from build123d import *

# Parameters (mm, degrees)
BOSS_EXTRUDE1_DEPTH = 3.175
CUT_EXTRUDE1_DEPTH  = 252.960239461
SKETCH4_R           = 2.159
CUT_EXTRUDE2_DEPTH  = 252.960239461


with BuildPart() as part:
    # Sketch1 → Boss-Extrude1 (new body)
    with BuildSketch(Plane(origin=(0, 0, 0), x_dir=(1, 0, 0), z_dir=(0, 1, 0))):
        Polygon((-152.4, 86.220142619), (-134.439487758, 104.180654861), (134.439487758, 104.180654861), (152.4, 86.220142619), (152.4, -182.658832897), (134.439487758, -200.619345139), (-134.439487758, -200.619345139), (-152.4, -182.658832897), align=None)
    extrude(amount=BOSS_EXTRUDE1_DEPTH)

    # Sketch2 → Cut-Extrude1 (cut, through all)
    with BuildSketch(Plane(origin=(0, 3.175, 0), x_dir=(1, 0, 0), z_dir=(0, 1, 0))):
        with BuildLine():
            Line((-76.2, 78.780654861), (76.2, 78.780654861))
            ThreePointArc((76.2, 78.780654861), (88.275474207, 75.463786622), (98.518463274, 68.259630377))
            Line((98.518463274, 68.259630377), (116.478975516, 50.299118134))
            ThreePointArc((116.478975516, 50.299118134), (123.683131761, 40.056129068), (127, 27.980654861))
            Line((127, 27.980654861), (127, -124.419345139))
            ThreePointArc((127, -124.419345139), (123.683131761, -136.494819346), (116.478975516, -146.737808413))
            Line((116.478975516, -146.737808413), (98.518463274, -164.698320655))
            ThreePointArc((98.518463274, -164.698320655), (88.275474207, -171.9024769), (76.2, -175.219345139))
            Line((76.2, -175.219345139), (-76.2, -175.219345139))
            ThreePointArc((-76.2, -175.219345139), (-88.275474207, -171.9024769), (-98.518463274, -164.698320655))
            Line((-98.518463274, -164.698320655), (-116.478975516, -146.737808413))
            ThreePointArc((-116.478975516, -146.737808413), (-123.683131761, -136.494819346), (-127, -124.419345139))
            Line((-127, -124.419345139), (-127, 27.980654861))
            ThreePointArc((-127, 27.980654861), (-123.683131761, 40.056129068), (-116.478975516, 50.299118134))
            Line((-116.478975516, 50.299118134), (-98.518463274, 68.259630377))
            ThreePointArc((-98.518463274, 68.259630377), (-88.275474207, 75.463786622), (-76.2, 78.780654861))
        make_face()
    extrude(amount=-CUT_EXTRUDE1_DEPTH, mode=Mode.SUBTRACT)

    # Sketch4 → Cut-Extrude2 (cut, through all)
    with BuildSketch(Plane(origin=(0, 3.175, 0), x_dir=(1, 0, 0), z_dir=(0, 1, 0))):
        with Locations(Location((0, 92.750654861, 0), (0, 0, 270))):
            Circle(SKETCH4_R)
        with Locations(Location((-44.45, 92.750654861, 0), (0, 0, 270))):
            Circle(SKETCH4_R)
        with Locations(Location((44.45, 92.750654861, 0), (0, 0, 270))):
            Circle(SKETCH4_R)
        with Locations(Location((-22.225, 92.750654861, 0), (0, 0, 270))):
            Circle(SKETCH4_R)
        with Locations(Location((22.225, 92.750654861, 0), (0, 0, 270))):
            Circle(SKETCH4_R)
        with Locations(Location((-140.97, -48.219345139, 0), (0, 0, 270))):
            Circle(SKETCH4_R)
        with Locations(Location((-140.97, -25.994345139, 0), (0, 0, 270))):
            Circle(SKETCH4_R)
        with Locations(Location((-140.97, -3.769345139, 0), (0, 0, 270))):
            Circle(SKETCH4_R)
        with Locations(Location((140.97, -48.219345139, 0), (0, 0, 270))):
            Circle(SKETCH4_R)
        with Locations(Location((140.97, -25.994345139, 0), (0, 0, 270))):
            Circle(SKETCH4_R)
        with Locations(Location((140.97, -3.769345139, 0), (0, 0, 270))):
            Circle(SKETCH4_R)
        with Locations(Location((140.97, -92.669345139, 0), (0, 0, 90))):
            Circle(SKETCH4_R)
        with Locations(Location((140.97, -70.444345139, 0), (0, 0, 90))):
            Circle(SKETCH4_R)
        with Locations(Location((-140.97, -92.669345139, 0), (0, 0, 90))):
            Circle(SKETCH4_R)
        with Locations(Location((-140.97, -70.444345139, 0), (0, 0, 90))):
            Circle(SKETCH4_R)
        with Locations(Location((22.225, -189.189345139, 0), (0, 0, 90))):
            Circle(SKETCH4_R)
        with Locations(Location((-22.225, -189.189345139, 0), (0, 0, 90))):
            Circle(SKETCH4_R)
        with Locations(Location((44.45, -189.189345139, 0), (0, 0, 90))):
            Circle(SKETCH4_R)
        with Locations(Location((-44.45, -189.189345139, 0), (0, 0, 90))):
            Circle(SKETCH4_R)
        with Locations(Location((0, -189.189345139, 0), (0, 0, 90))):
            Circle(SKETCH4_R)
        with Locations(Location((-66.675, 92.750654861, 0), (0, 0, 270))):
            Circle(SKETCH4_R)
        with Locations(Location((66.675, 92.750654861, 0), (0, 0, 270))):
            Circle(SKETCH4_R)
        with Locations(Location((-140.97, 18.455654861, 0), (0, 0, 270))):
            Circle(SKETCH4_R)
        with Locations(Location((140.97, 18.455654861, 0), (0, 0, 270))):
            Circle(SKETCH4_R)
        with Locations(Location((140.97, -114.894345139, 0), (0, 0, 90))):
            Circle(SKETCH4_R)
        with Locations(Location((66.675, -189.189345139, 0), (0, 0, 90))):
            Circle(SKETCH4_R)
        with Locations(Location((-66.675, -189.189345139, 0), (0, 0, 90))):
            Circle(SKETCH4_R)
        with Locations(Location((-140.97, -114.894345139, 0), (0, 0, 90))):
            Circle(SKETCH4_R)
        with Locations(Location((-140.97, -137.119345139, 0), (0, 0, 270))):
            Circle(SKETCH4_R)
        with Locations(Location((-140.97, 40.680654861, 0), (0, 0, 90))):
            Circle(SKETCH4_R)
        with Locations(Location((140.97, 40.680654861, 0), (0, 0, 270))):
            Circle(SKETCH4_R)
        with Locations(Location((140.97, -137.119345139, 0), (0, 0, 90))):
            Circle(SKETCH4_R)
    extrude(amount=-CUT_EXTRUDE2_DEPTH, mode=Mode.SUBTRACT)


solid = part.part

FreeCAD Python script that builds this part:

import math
import FreeCAD as App
import Part
import Sketcher

V = App.Vector
Q = App.Units.Quantity

doc = App.newDocument("Part")
body = doc.addObject("PartDesign::Body", "Body")

# Sketch on XZ plane
sketch1 = doc.addObject("Sketcher::SketchObject", "Sketch")
body.addObject(sketch1)
sketch1.AttachmentSupport = (doc.XZ_Plane, [""])
sketch1.MapMode = "FlatFace"
sketch1.addGeometry(Part.LineSegment(V(-134, -104, 0), V(-152, -86, 0)), False)
sketch1.addGeometry(Part.LineSegment(V(-152, -86, 0), V(-152, 183, 0)), False)
sketch1.addGeometry(Part.LineSegment(V(-152, 183, 0), V(-134, 201, 0)), False)
sketch1.addGeometry(Part.LineSegment(V(-134, 201, 0), V(134, 201, 0)), False)
sketch1.addGeometry(Part.LineSegment(V(134, 201, 0), V(152, 183, 0)), False)
sketch1.addGeometry(Part.LineSegment(V(152, 183, 0), V(152, -86, 0)), False)
sketch1.addGeometry(Part.LineSegment(V(152, -86, 0), V(134, -104, 0)), False)
sketch1.addGeometry(Part.LineSegment(V(134, -104, 0), V(-134, -104, 0)), False)
sketch1.addConstraint(Sketcher.Constraint("Coincident", 0, 2, 1, 1))
sketch1.addConstraint(Sketcher.Constraint("Coincident", 1, 2, 2, 1))
sketch1.addConstraint(Sketcher.Constraint("Coincident", 2, 2, 3, 1))
sketch1.addConstraint(Sketcher.Constraint("Coincident", 3, 2, 4, 1))
sketch1.addConstraint(Sketcher.Constraint("Coincident", 4, 2, 5, 1))
sketch1.addConstraint(Sketcher.Constraint("Coincident", 5, 2, 6, 1))
sketch1.addConstraint(Sketcher.Constraint("Coincident", 6, 2, 7, 1))
sketch1.addConstraint(Sketcher.Constraint("Coincident", 7, 2, 0, 1))
sketch1.addConstraint(Sketcher.Constraint("Vertical", 1))
sketch1.addConstraint(Sketcher.Constraint("Horizontal", 3))
sketch1.addConstraint(Sketcher.Constraint("Vertical", 5))
sketch1.addConstraint(Sketcher.Constraint("Horizontal", 7))
sketch1.addConstraint(Sketcher.Constraint("Symmetric", 1, 2, 4, 2, -2))
sketch1.addConstraint(Sketcher.Constraint("Perpendicular", 0, 2))
sketch1.addConstraint(Sketcher.Constraint("Perpendicular", 2, 4))
sketch1.addConstraint(Sketcher.Constraint("Perpendicular", 4, 6))
sketch1.addConstraint(Sketcher.Constraint("Horizontal", 0, 2, 5, 2))
sketch1.addConstraint(Sketcher.Constraint("Vertical", 3, 2, 6, 2))
sketch1.addConstraint(Sketcher.Constraint("Vertical", 2, 2, 7, 2))
sketch1.addConstraint(Sketcher.Constraint("Equal", 7, 1))
sketch1.addConstraint(Sketcher.Constraint("Distance", 0, Q("1 in")))
sketch1.addConstraint(Sketcher.Constraint("DistanceX", 0, 2, -1, 1, Q("6 in")))
sketch1.addConstraint(Sketcher.Constraint("DistanceY", 0, 2, -1, 1, 86.220143))
pad1 = doc.addObject("PartDesign::Pad", "Pad")
body.addObject(pad1)
pad1.Profile = sketch1
pad1.Length = Q("0.125 in")
pad1.Reversed = True

# Sketch on XZ plane
sketch2 = doc.addObject("Sketcher::SketchObject", "Sketch001")
body.addObject(sketch2)
sketch2.AttachmentSupport = (doc.XZ_Plane, [""])
sketch2.MapMode = "FlatFace"
sketch2.AttachmentOffset = App.Placement(V(0, 0, -0.125 * 25.4), App.Rotation())
sketch2.addGeometry(Part.LineSegment(V(76, -79, 0), V(-76, -79, 0)), False)
sketch2.addGeometry(Part.ArcOfCircle(Part.Circle(V(-73, -42, 0), V(0, 0, 1), 36), math.radians(-135), math.radians(-95)), False)
sketch2.addGeometry(Part.LineSegment(V(-99, -68, 0), V(-116, -50, 0)), False)
sketch2.addGeometry(Part.ArcOfCircle(Part.Circle(V(-91, -24, 0), V(0, 0, 1), 36), math.radians(-175), math.radians(-135)), False)
sketch2.addGeometry(Part.LineSegment(V(-127, -28, 0), V(-127, 124, 0)), False)
sketch2.addGeometry(Part.ArcOfCircle(Part.Circle(V(-91, 121, 0), V(0, 0, 1), 36), math.radians(135), math.radians(175)), False)
sketch2.addGeometry(Part.LineSegment(V(-116, 147, 0), V(-99, 165, 0)), False)
sketch2.addGeometry(Part.ArcOfCircle(Part.Circle(V(-73, 139, 0), V(0, 0, 1), 36), math.radians(95), math.radians(135)), False)
sketch2.addGeometry(Part.LineSegment(V(-76, 175, 0), V(76, 175, 0)), False)
sketch2.addGeometry(Part.ArcOfCircle(Part.Circle(V(73, 139, 0), V(0, 0, 1), 36), math.radians(45), math.radians(85)), False)
sketch2.addGeometry(Part.LineSegment(V(99, 165, 0), V(116, 147, 0)), False)
sketch2.addGeometry(Part.ArcOfCircle(Part.Circle(V(91, 121, 0), V(0, 0, 1), 36), math.radians(5), math.radians(45)), False)
sketch2.addGeometry(Part.LineSegment(V(127, 124, 0), V(127, -28, 0)), False)
sketch2.addGeometry(Part.ArcOfCircle(Part.Circle(V(91, -24, 0), V(0, 0, 1), 36), math.radians(-45), math.radians(-5)), False)
sketch2.addGeometry(Part.LineSegment(V(116, -50, 0), V(99, -68, 0)), False)
sketch2.addGeometry(Part.ArcOfCircle(Part.Circle(V(73, -42, 0), V(0, 0, 1), 36), math.radians(-85), math.radians(-45)), False)
sketch2.addConstraint(Sketcher.Constraint("Coincident", 0, 2, 1, 2))
sketch2.addConstraint(Sketcher.Constraint("Tangent", 1, 1, 2, 1))
sketch2.addConstraint(Sketcher.Constraint("Tangent", 2, 2, 3, 2))
sketch2.addConstraint(Sketcher.Constraint("Coincident", 3, 1, 4, 1))
sketch2.addConstraint(Sketcher.Constraint("Coincident", 4, 2, 5, 2))
sketch2.addConstraint(Sketcher.Constraint("Tangent", 5, 1, 6, 1))
sketch2.addConstraint(Sketcher.Constraint("Tangent", 6, 2, 7, 2))
sketch2.addConstraint(Sketcher.Constraint("Coincident", 7, 1, 8, 1))
sketch2.addConstraint(Sketcher.Constraint("Coincident", 8, 2, 9, 2))
sketch2.addConstraint(Sketcher.Constraint("Tangent", 9, 1, 10, 1))
sketch2.addConstraint(Sketcher.Constraint("Tangent", 10, 2, 11, 2))
sketch2.addConstraint(Sketcher.Constraint("Coincident", 11, 1, 12, 1))
sketch2.addConstraint(Sketcher.Constraint("Coincident", 12, 2, 13, 2))
sketch2.addConstraint(Sketcher.Constraint("Tangent", 13, 1, 14, 1))
sketch2.addConstraint(Sketcher.Constraint("Tangent", 14, 2, 15, 2))
sketch2.addConstraint(Sketcher.Constraint("Coincident", 15, 1, 0, 1))
sketch2.addConstraint(Sketcher.Constraint("Horizontal", 0))
sketch2.addConstraint(Sketcher.Constraint("Vertical", 4))
sketch2.addConstraint(Sketcher.Constraint("Horizontal", 8))
sketch2.addConstraint(Sketcher.Constraint("Vertical", 12))
sketch2.addConstraint(Sketcher.Constraint("Equal", 1, 3))
sketch2.addConstraint(Sketcher.Constraint("Equal", 3, 5))
sketch2.addConstraint(Sketcher.Constraint("Equal", 5, 7))
sketch2.addConstraint(Sketcher.Constraint("Equal", 7, 9))
sketch2.addConstraint(Sketcher.Constraint("Equal", 9, 11))
sketch2.addConstraint(Sketcher.Constraint("Equal", 11, 13))
sketch2.addConstraint(Sketcher.Constraint("Equal", 13, 15))
sketch2.addConstraint(Sketcher.Constraint("Symmetric", 7, 3, 9, 3, -2))
sketch2.addConstraint(Sketcher.Constraint("Symmetric", 5, 3, 11, 3, -2))
sketch2.addConstraint(Sketcher.Constraint("Symmetric", 3, 3, 13, 3, -2))
sketch2.addConstraint(Sketcher.Constraint("Symmetric", 1, 3, 15, 3, -2))
sketch2.addConstraint(Sketcher.Constraint("Perpendicular", 2, 6))
sketch2.addConstraint(Sketcher.Constraint("Perpendicular", 6, 10))
sketch2.addConstraint(Sketcher.Constraint("Horizontal", 4, 2, 11, 1))
sketch2.addConstraint(Sketcher.Constraint("Vertical", 3, 3, 5, 3))
sketch2.addConstraint(Sketcher.Constraint("Vertical", 1, 3, 7, 3))
sketch2.addConstraint(Sketcher.Constraint("Vertical", 0, 2, 7, 1))
sketch2.addConstraint(Sketcher.Constraint("Equal", 8, 4))
sketch2.addConstraint(Sketcher.Constraint("DistanceX", 0, 2, 0, 1, Q("6 in")))
sketch2.addConstraint(Sketcher.Constraint("Distance", 2, Q("1 in")))
sketch2.addConstraint(Sketcher.Constraint("DistanceX", 3, 1, -1, 1, Q("5 in")))
sketch2.addConstraint(Sketcher.Constraint("DistanceY", 0, 2, 3, 1, Q("2 in")))
sketch2.addConstraint(Sketcher.Constraint("Radius", 1, 36.490181))
sketch2.addConstraint(Sketcher.Constraint("DistanceY", 1, 1, -1, 1, 68.25963))
pocket1 = doc.addObject("PartDesign::Pocket", "Pocket")
body.addObject(pocket1)
pocket1.Profile = sketch2
pocket1.Type = "ThroughAll"
pocket1.Reversed = True

# Sketch on XZ plane
sketch3 = doc.addObject("Sketcher::SketchObject", "Sketch002")
body.addObject(sketch3)
sketch3.AttachmentSupport = (doc.XZ_Plane, [""])
sketch3.MapMode = "FlatFace"
sketch3.AttachmentOffset = App.Placement(V(0, 0, -0.125 * 25.4), App.Rotation())
sketch3.addGeometry(Part.Circle(V(0, -92.8, 0), V(0, 0, 1), 2.2), False)
sketch3.addGeometry(Part.Circle(V(-44.5, -92.8, 0), V(0, 0, 1), 2.2), False)
sketch3.addGeometry(Part.Circle(V(44.5, -92.8, 0), V(0, 0, 1), 2.2), False)
sketch3.addGeometry(Part.Circle(V(-22.2, -92.8, 0), V(0, 0, 1), 2.2), False)
sketch3.addGeometry(Part.Circle(V(22.2, -92.8, 0), V(0, 0, 1), 2.2), False)
sketch3.addGeometry(Part.Circle(V(-141, 48.2, 0), V(0, 0, 1), 2.2), False)
sketch3.addGeometry(Part.Circle(V(-141, 26, 0), V(0, 0, 1), 2.2), False)
sketch3.addGeometry(Part.Circle(V(-141, 3.8, 0), V(0, 0, 1), 2.2), False)
sketch3.addGeometry(Part.Circle(V(141, 48.2, 0), V(0, 0, 1), 2.2), False)
sketch3.addGeometry(Part.Circle(V(141, 26, 0), V(0, 0, 1), 2.2), False)
sketch3.addGeometry(Part.Circle(V(141, 3.8, 0), V(0, 0, 1), 2.2), False)
sketch3.addGeometry(Part.Circle(V(141, 92.7, 0), V(0, 0, 1), 2.2), False)
sketch3.addGeometry(Part.Circle(V(141, 70.4, 0), V(0, 0, 1), 2.2), False)
sketch3.addGeometry(Part.Circle(V(-141, 92.7, 0), V(0, 0, 1), 2.2), False)
sketch3.addGeometry(Part.Circle(V(-141, 70.4, 0), V(0, 0, 1), 2.2), False)
sketch3.addGeometry(Part.Circle(V(22.2, 189.2, 0), V(0, 0, 1), 2.2), False)
sketch3.addGeometry(Part.Circle(V(-22.2, 189.2, 0), V(0, 0, 1), 2.2), False)
sketch3.addGeometry(Part.Circle(V(44.5, 189.2, 0), V(0, 0, 1), 2.2), False)
sketch3.addGeometry(Part.Circle(V(-44.5, 189.2, 0), V(0, 0, 1), 2.2), False)
sketch3.addGeometry(Part.Circle(V(0, 189.2, 0), V(0, 0, 1), 2.2), False)
sketch3.addGeometry(Part.Circle(V(-66.7, -92.8, 0), V(0, 0, 1), 2.2), False)
sketch3.addGeometry(Part.Circle(V(66.7, -92.8, 0), V(0, 0, 1), 2.2), False)
sketch3.addGeometry(Part.Circle(V(-141, -18.5, 0), V(0, 0, 1), 2.2), False)
sketch3.addGeometry(Part.Circle(V(141, -18.5, 0), V(0, 0, 1), 2.2), False)
sketch3.addGeometry(Part.Circle(V(141, 114.9, 0), V(0, 0, 1), 2.2), False)
sketch3.addGeometry(Part.Circle(V(66.7, 189.2, 0), V(0, 0, 1), 2.2), False)
sketch3.addGeometry(Part.Circle(V(-66.7, 189.2, 0), V(0, 0, 1), 2.2), False)
sketch3.addGeometry(Part.Circle(V(-141, 114.9, 0), V(0, 0, 1), 2.2), False)
sketch3.addGeometry(Part.Circle(V(-141, 137.1, 0), V(0, 0, 1), 2.2), False)
sketch3.addGeometry(Part.Circle(V(-141, -40.7, 0), V(0, 0, 1), 2.2), False)
sketch3.addGeometry(Part.Circle(V(141, -40.7, 0), V(0, 0, 1), 2.2), False)
sketch3.addGeometry(Part.Circle(V(141, 137.1, 0), V(0, 0, 1), 2.2), False)
sketch3.addConstraint(Sketcher.Constraint("Equal", 0, 1))
sketch3.addConstraint(Sketcher.Constraint("Equal", 1, 2))
sketch3.addConstraint(Sketcher.Constraint("Equal", 2, 3))
sketch3.addConstraint(Sketcher.Constraint("Equal", 3, 4))
sketch3.addConstraint(Sketcher.Constraint("Equal", 4, 5))
sketch3.addConstraint(Sketcher.Constraint("Equal", 5, 6))
sketch3.addConstraint(Sketcher.Constraint("Equal", 6, 7))
sketch3.addConstraint(Sketcher.Constraint("Equal", 7, 8))
sketch3.addConstraint(Sketcher.Constraint("Equal", 8, 9))
sketch3.addConstraint(Sketcher.Constraint("Equal", 9, 10))
sketch3.addConstraint(Sketcher.Constraint("Equal", 10, 11))
sketch3.addConstraint(Sketcher.Constraint("Equal", 11, 12))
sketch3.addConstraint(Sketcher.Constraint("Equal", 12, 13))
sketch3.addConstraint(Sketcher.Constraint("Equal", 13, 14))
sketch3.addConstraint(Sketcher.Constraint("Equal", 14, 15))
sketch3.addConstraint(Sketcher.Constraint("Equal", 15, 16))
sketch3.addConstraint(Sketcher.Constraint("Equal", 16, 17))
sketch3.addConstraint(Sketcher.Constraint("Equal", 17, 18))
sketch3.addConstraint(Sketcher.Constraint("Equal", 18, 19))
sketch3.addConstraint(Sketcher.Constraint("Equal", 19, 20))
sketch3.addConstraint(Sketcher.Constraint("Equal", 20, 21))
sketch3.addConstraint(Sketcher.Constraint("Equal", 21, 22))
sketch3.addConstraint(Sketcher.Constraint("Equal", 22, 23))
sketch3.addConstraint(Sketcher.Constraint("Equal", 23, 24))
sketch3.addConstraint(Sketcher.Constraint("Equal", 24, 25))
sketch3.addConstraint(Sketcher.Constraint("Equal", 25, 26))
sketch3.addConstraint(Sketcher.Constraint("Equal", 26, 27))
sketch3.addConstraint(Sketcher.Constraint("Equal", 27, 28))
sketch3.addConstraint(Sketcher.Constraint("Equal", 28, 29))
sketch3.addConstraint(Sketcher.Constraint("Equal", 29, 30))
sketch3.addConstraint(Sketcher.Constraint("Equal", 30, 31))
sketch3.addConstraint(Sketcher.Constraint("Symmetric", 1, 3, 2, 3, -2))
sketch3.addConstraint(Sketcher.Constraint("Symmetric", 3, 3, 4, 3, -2))
sketch3.addConstraint(Sketcher.Constraint("Symmetric", 5, 3, 8, 3, -2))
sketch3.addConstraint(Sketcher.Constraint("Symmetric", 6, 3, 9, 3, -2))
sketch3.addConstraint(Sketcher.Constraint("Symmetric", 7, 3, 10, 3, -2))
sketch3.addConstraint(Sketcher.Constraint("Symmetric", 11, 3, 13, 3, -2))
sketch3.addConstraint(Sketcher.Constraint("Symmetric", 12, 3, 14, 3, -2))
sketch3.addConstraint(Sketcher.Constraint("Symmetric", 15, 3, 16, 3, -2))
sketch3.addConstraint(Sketcher.Constraint("Symmetric", 17, 3, 18, 3, -2))
sketch3.addConstraint(Sketcher.Constraint("Symmetric", 20, 3, 21, 3, -2))
sketch3.addConstraint(Sketcher.Constraint("Symmetric", 22, 3, 23, 3, -2))
sketch3.addConstraint(Sketcher.Constraint("Symmetric", 25, 3, 26, 3, -2))
sketch3.addConstraint(Sketcher.Constraint("Symmetric", 24, 3, 27, 3, -2))
sketch3.addConstraint(Sketcher.Constraint("Symmetric", 29, 3, 30, 3, -2))
sketch3.addConstraint(Sketcher.Constraint("Symmetric", 28, 3, 31, 3, -2))
sketch3.addConstraint(Sketcher.Constraint("PointOnObject", 0, 3, -2))
sketch3.addConstraint(Sketcher.Constraint("PointOnObject", 19, 3, -2))
sketch3.addConstraint(Sketcher.Constraint("Horizontal", 0, 3, 1, 3))
sketch3.addConstraint(Sketcher.Constraint("Horizontal", 2, 3, 3, 3))
sketch3.addConstraint(Sketcher.Constraint("Horizontal", 16, 3, 17, 3))
sketch3.addConstraint(Sketcher.Constraint("Horizontal", 18, 3, 19, 3))
sketch3.addConstraint(Sketcher.Constraint("Horizontal", 4, 3, 20, 3))
sketch3.addConstraint(Sketcher.Constraint("Horizontal", 19, 3, 25, 3))
sketch3.addConstraint(Sketcher.Constraint("Vertical", 5, 3, 6, 3))
sketch3.addConstraint(Sketcher.Constraint("Vertical", 6, 3, 7, 3))
sketch3.addConstraint(Sketcher.Constraint("Vertical", 10, 3, 11, 3))
sketch3.addConstraint(Sketcher.Constraint("Vertical", 11, 3, 12, 3))
sketch3.addConstraint(Sketcher.Constraint("Vertical", 4, 3, 15, 3))
sketch3.addConstraint(Sketcher.Constraint("Vertical", 2, 3, 17, 3))
sketch3.addConstraint(Sketcher.Constraint("Vertical", 14, 3, 22, 3))
sketch3.addConstraint(Sketcher.Constraint("Vertical", 23, 3, 24, 3))
sketch3.addConstraint(Sketcher.Constraint("Vertical", 21, 3, 25, 3))
sketch3.addConstraint(Sketcher.Constraint("Vertical", 27, 3, 28, 3))
sketch3.addConstraint(Sketcher.Constraint("Vertical", 28, 3, 29, 3))
sketch3.addConstraint(Sketcher.Constraint("Diameter", 0, Q("0.17 in")))
sketch3.addConstraint(Sketcher.Constraint("DistanceX", 1, 3, 2, 3, Q("3.5 in")))
sketch3.addConstraint(Sketcher.Constraint("DistanceX", 5, 3, 1, 3, Q("3.8 in")))
sketch3.addConstraint(Sketcher.Constraint("DistanceY", 1, 3, 7, 3, Q("3.8 in")))
sketch3.addConstraint(Sketcher.Constraint("DistanceY", 10, 3, 11, 3, Q("3.5 in")))
sketch3.addConstraint(Sketcher.Constraint("DistanceY", 11, 3, 15, 3, Q("3.8 in")))
sketch3.addConstraint(Sketcher.Constraint("DistanceX", 20, 3, 4, 3, Q("3.5 in")))
sketch3.addConstraint(Sketcher.Constraint("DistanceY", 22, 3, 14, 3, Q("3.5 in")))
sketch3.addConstraint(Sketcher.Constraint("DistanceY", 9, 3, 24, 3, Q("3.5 in")))
sketch3.addConstraint(Sketcher.Constraint("DistanceY", 5, 3, 28, 3, Q("3.5 in")))
sketch3.addConstraint(Sketcher.Constraint("DistanceY", 29, 3, 5, 3, Q("3.5 in")))
sketch3.addConstraint(Sketcher.Constraint("DistanceX", 3, 3, 4, 3, Q("1.75 in")))
sketch3.addConstraint(Sketcher.Constraint("DistanceY", 1, 3, 5, 3, Q("5.55 in")))
sketch3.addConstraint(Sketcher.Constraint("DistanceY", 9, 3, 12, 3, Q("1.75 in")))
sketch3.addConstraint(Sketcher.Constraint("DistanceY", 6, 3, 5, 3, Q("0.875 in")))
sketch3.addConstraint(Sketcher.Constraint("DistanceY", 0, 3, -1, 1, 92.750655))
pocket2 = doc.addObject("PartDesign::Pocket", "Pocket001")
body.addObject(pocket2)
pocket2.Profile = sketch3
pocket2.Type = "ThroughAll"
pocket2.Reversed = True

doc.recompute()
